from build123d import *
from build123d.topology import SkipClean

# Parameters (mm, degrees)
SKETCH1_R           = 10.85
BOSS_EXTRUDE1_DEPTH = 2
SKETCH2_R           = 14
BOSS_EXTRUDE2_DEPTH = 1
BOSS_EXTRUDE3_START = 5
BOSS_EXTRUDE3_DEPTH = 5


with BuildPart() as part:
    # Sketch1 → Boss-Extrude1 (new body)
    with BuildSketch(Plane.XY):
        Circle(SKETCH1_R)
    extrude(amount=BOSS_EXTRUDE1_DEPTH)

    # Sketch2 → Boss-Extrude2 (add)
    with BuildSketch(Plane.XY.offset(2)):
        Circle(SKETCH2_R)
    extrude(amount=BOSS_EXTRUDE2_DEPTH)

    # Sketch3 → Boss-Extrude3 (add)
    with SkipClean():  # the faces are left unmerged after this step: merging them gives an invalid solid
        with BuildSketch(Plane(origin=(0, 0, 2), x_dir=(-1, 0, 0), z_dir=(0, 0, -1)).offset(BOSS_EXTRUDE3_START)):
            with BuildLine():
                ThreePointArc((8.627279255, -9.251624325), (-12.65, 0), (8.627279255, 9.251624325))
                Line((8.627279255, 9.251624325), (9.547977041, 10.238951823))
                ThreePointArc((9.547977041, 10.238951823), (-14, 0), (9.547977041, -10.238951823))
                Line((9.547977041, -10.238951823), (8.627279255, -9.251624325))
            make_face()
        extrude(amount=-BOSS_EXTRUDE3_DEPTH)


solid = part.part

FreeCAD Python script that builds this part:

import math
import FreeCAD as App
import Part
import Sketcher
from FreeCAD import Vector
Q = App.Units.Quantity

doc = App.newDocument("Part")
body = doc.addObject("PartDesign::Body", "Body")

# Sketch on XY plane
sketch1 = body.newObject("Sketcher::SketchObject", "Sketch")
sketch1.AttachmentSupport = (doc.getObject("XY_Plane"), [""])
sketch1.MapMode = "FlatFace"
sketch1.addGeometry(Part.Circle(Vector(0, 0, 0), Vector(0, 0, 1), 11), False)
sketch1.addConstraint([
    Sketcher.Constraint("Coincident", 0, 3, -1, 1),
    Sketcher.Constraint("Diameter", 0, 21.7),
])
pad1 = body.newObject("PartDesign::Pad", "Pad")
pad1.Profile = sketch1
pad1.Length = 2

# Sketch on XY plane
sketch2 = body.newObject("Sketcher::SketchObject", "Sketch001")
sketch2.AttachmentSupport = (doc.getObject("XY_Plane"), [""])
sketch2.MapMode = "FlatFace"
sketch2.AttachmentOffset = App.Placement(Vector(0, 0, 2), App.Rotation())
sketch2.addGeometry(Part.Circle(Vector(0, 0, 0), Vector(0, 0, 1), 14), False)
sketch2.addConstraint([
    Sketcher.Constraint("Coincident", 0, 3, -1, 1),
    Sketcher.Constraint("Diameter", 0, 28.0),
])
pad2 = body.newObject("PartDesign::Pad", "Pad001")
pad2.Profile = sketch2
pad2.Length = 1

# Sketch on XY plane
sketch3 = body.newObject("Sketcher::SketchObject", "Sketch002")
sketch3.AttachmentSupport = (doc.getObject("XY_Plane"), [""])
sketch3.MapMode = "FlatFace"
sketch3.AttachmentOffset = App.Placement(Vector(0, 0, -3), App.Rotation())
sketch3.addGeometry([
    Part.ArcOfCircle(Part.Circle(Vector(0, 0, 0), Vector(0, 0, 1), 12.7), math.radians(-133), math.radians(133)),
    Part.LineSegment(Vector(-8.6, 9.3, 0), Vector(-9.5, 10.2, 0)),
    Part.ArcOfCircle(Part.Circle(Vector(0, 0, 0), Vector(0, 0, 1), 14), math.radians(-133), math.radians(133)),
    Part.LineSegment(Vector(-9.5, -10.2, 0), Vector(-8.6, -9.3, 0)),
], False)
sketch3.addConstraint([
    Sketcher.Constraint("Coincident", 0, 2, 1, 1),
    Sketcher.Constraint("Coincident", 1, 2, 2, 2),
    Sketcher.Constraint("Coincident", 2, 1, 3, 1),
    Sketcher.Constraint("Coincident", 3, 2, 0, 1),
    Sketcher.Constraint("Coincident", 0, 3, -1, 1),
    Sketcher.Constraint("Coincident", 2, 3, -1, 1),
    Sketcher.Constraint("Vertical", 1, 2, 2, 1),
    Sketcher.Constraint("Vertical", 0, 2, 3, 2),
    Sketcher.Constraint("Radius", 2, 14.0),
    Sketcher.Constraint("Angle", 1, Q("133 deg")),
    Sketcher.Constraint("Radius", 0, 12.65),
    Sketcher.Constraint("DistanceX", 0, 2, -1, 1, 8.627279),
])
pad3 = body.newObject("PartDesign::Pad", "Pad002")
pad3.Profile = sketch3
pad3.Length = 5

doc.recompute()
